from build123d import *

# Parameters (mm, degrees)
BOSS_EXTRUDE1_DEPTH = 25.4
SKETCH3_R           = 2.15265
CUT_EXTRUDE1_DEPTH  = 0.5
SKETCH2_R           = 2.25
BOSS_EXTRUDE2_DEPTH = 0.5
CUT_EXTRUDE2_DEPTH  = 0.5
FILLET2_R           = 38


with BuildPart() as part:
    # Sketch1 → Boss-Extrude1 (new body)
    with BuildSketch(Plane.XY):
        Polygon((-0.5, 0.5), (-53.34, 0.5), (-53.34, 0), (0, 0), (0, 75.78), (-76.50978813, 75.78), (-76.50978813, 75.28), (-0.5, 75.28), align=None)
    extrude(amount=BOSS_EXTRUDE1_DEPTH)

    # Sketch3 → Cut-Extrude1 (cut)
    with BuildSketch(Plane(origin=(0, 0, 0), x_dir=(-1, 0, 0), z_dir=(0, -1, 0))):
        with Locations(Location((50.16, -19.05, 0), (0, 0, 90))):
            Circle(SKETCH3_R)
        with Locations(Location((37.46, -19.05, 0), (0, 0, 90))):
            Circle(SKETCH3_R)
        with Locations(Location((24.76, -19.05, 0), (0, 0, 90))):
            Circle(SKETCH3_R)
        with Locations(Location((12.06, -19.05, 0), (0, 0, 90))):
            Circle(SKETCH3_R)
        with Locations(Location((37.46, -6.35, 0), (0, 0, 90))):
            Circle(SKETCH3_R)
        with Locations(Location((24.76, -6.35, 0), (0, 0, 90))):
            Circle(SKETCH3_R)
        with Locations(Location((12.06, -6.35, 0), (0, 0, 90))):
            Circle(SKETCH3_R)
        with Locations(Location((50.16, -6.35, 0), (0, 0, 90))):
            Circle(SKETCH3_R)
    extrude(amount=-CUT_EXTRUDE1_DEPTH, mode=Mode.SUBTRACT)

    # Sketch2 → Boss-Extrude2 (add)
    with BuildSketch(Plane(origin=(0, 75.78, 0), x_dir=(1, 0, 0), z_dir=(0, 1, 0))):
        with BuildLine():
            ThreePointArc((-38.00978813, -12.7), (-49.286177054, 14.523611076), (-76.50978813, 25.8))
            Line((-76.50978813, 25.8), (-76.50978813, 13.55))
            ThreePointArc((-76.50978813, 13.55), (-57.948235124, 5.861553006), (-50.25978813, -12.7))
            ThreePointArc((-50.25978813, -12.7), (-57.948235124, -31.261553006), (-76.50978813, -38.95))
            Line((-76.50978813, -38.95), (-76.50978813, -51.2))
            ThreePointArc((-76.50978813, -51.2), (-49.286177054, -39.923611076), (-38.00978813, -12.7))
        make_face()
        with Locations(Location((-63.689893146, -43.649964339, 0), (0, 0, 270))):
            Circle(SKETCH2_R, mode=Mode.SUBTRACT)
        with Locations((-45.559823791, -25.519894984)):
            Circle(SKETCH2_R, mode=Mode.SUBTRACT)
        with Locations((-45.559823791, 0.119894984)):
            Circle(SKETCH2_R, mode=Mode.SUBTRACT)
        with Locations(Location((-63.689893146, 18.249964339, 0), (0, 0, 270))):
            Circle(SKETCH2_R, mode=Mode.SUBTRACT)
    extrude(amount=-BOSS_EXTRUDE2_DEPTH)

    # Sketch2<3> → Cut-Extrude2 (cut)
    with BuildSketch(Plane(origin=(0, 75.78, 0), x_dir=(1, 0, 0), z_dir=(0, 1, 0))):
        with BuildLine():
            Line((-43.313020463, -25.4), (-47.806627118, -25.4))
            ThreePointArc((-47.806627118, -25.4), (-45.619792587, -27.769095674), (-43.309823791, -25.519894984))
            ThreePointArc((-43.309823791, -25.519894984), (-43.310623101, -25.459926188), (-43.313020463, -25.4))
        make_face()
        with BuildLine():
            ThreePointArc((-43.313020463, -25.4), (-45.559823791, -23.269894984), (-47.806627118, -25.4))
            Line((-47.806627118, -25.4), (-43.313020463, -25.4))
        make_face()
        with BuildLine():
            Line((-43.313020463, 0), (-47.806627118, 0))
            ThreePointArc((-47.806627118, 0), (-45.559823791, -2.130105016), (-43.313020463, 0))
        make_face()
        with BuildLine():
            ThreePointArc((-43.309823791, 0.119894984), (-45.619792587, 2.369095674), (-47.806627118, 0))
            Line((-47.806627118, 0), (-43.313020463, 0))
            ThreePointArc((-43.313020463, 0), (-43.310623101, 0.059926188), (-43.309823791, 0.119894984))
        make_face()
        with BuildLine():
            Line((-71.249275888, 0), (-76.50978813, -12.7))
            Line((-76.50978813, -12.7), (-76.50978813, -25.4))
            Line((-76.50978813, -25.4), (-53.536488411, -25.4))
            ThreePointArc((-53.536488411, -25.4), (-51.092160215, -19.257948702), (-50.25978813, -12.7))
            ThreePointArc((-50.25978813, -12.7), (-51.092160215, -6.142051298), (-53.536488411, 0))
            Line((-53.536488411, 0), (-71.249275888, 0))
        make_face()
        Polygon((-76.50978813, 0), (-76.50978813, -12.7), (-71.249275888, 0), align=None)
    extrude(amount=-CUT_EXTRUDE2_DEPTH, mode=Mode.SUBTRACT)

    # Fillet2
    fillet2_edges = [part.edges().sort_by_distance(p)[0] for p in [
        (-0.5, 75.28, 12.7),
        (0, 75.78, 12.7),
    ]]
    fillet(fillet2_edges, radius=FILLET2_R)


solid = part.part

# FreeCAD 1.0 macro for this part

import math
import FreeCAD as App
import Part
import Sketcher

V = App.Vector


def edges_at(feature, points):
    """Names of the edges that pass closest to the given points."""
    edges = feature.Shape.Edges
    near = lambda p: min(range(len(edges)), key=lambda i: edges[i].distToShape(Part.Vertex(*p))[0])
    return sorted({f"Edge{near(p) + 1}" for p in points})


def add_polygon(sketch, points):
    """Adds a closed chain of lines whose ends are joined by coincident constraints."""
    first, n = sketch.GeometryCount, len(points)
    for a, b in zip(points, points[1:] + points[:1]):
        sketch.addGeometry(Part.LineSegment(App.Vector(*a, 0), App.Vector(*b, 0)), False)
    for i in range(n):
        sketch.addConstraint(Sketcher.Constraint("Coincident", first + i, 2, first + (i + 1) % n, 1))

doc = App.newDocument("Part")
body = doc.addObject("PartDesign::Body", "Body")

# Sketch on XY plane
sketch1 = doc.addObject("Sketcher::SketchObject", "Sketch")
body.addObject(sketch1)
sketch1.AttachmentSupport = (doc.XY_Plane, [""])
sketch1.MapMode = "FlatFace"
add_polygon(sketch1, [(-0.5, 0.5), (-53.3, 0.5), (-53.3, 0), (0, 0), (0, 75.8), (-76.5, 75.8), (-76.5, 75.3), (-0.5, 75.3)])  # lines 0-7
sketch1.addConstraint([
    Sketcher.Constraint("Horizontal", 0),
    Sketcher.Constraint("Vertical", 1),
    Sketcher.Constraint("Horizontal", 2),
    Sketcher.Constraint("Vertical", 3),
    Sketcher.Constraint("Horizontal", 4),
    Sketcher.Constraint("Vertical", 5),
    Sketcher.Constraint("Horizontal", 6),
    Sketcher.Constraint("Vertical", 7),
    Sketcher.Constraint("Coincident", 2, 2, -1, 1),
    Sketcher.Constraint("Equal", 1, 5),
    Sketcher.Constraint("DistanceY", 1, 2, 1, 1, 0.5),
    Sketcher.Constraint("DistanceX", 0, 2, 0, 1, 52.84),
    Sketcher.Constraint("DistanceX", 2, 1, 2, 2, 53.34),
    Sketcher.Constraint("DistanceY", 3, 1, 3, 2, 75.78),
    Sketcher.Constraint("DistanceX", 4, 2, 4, 1, 76.509788),
])
pad1 = doc.addObject("PartDesign::Pad", "Pad")
body.addObject(pad1)
pad1.Profile = sketch1
pad1.Length = 25.4

# Sketch on XZ plane
sketch2 = doc.addObject("Sketcher::SketchObject", "Sketch001")
body.addObject(sketch2)
sketch2.AttachmentSupport = (doc.XZ_Plane, [""])
sketch2.MapMode = "FlatFace"
sketch2.addGeometry([
    Part.Circle(V(-50.2, 19.1, 0), V(0, 0, 1), 2.2),  # 0
    Part.Circle(V(-37.5, 19.1, 0), V(0, 0, 1), 2.2),  # 1
    Part.Circle(V(-24.8, 19.1, 0), V(0, 0, 1), 2.2),  # 2
    Part.Circle(V(-12.1, 19.1, 0), V(0, 0, 1), 2.2),  # 3
    Part.Circle(V(-37.5, 6.3, 0), V(0, 0, 1), 2.2),  # 4
    Part.Circle(V(-24.8, 6.3, 0), V(0, 0, 1), 2.2),  # 5
    Part.Circle(V(-12.1, 6.3, 0), V(0, 0, 1), 2.2),  # 6
    Part.Circle(V(-50.2, 6.3, 0), V(0, 0, 1), 2.2),  # 7
], False)
sketch2.addConstraint([
    Sketcher.Constraint("Equal", 0, 1),
    Sketcher.Constraint("Equal", 1, 2),
    Sketcher.Constraint("Equal", 2, 3),
    Sketcher.Constraint("Equal", 3, 4),
    Sketcher.Constraint("Equal", 4, 5),
    Sketcher.Constraint("Equal", 5, 6),
    Sketcher.Constraint("Equal", 6, 7),
    Sketcher.Constraint("Horizontal", 0, 3, 1, 3),
    Sketcher.Constraint("Horizontal", 1, 3, 2, 3),
    Sketcher.Constraint("Horizontal", 2, 3, 3, 3),
    Sketcher.Constraint("Horizontal", 4, 3, 5, 3),
    Sketcher.Constraint("Horizontal", 5, 3, 6, 3),
    Sketcher.Constraint("Horizontal", 6, 3, 7, 3),
    Sketcher.Constraint("Vertical", 1, 3, 4, 3),
    Sketcher.Constraint("Vertical", 2, 3, 5, 3),
    Sketcher.Constraint("Vertical", 3, 3, 6, 3),
    Sketcher.Constraint("Vertical", 0, 3, 7, 3),
    Sketcher.Constraint("Diameter", 0, 4.3053),
    Sketcher.Constraint("DistanceX", 0, 3, 1, 3, 12.7),
    Sketcher.Constraint("DistanceX", 1, 3, 2, 3, 12.7),
    Sketcher.Constraint("DistanceX", 2, 3, 3, 3, 12.7),
    Sketcher.Constraint("DistanceY", 4, 3, 1, 3, 12.7),
    Sketcher.Constraint("DistanceX", 0, 3, -1, 1, 50.16),
    Sketcher.Constraint("DistanceY", -1, 1, 0, 3, 19.05),
])
pocket1 = doc.addObject("PartDesign::Pocket", "Pocket")
body.addObject(pocket1)
pocket1.Profile = sketch2
pocket1.Length = 0.5

# Sketch on XZ plane
sketch3 = doc.addObject("Sketcher::SketchObject", "Sketch002")
body.addObject(sketch3)
sketch3.AttachmentSupport = (doc.XZ_Plane, [""])
sketch3.MapMode = "FlatFace"
sketch3.AttachmentOffset = App.Placement(V(0, 0, -75.78), App.Rotation())
sketch3.addGeometry([
    Part.ArcOfCircle(Part.Circle(V(-76.5, 12.7, 0), V(0, 0, 1), 38.5), math.radians(-90), math.radians(0)),  # 0
    Part.LineSegment(V(-76.5, -25.8, 0), V(-76.5, -13.6, 0)),  # 1
    Part.ArcOfCircle(Part.Circle(V(-76.5, 12.7, 0), V(0, 0, 1), 26.3), math.radians(-90), math.radians(0)),  # 2
    Part.ArcOfCircle(Part.Circle(V(-76.5, 12.7, 0), V(0, 0, 1), 26.3), math.radians(0), math.radians(90)),  # 3
    Part.LineSegment(V(-76.5, 39, 0), V(-76.5, 51.2, 0)),  # 4
    Part.ArcOfCircle(Part.Circle(V(-76.5, 12.7, 0), V(0, 0, 1), 38.5), math.radians(0), math.radians(90)),  # 5
    Part.Circle(V(-63.7, 43.6, 0), V(0, 0, 1), 2.2),  # 6
    Part.Circle(V(-45.6, 25.5, 0), V(0, 0, 1), 2.2),  # 7
    Part.Circle(V(-63.7, -18.2, 0), V(0, 0, 1), 2.2),  # 8
    Part.Circle(V(-45.6, -0.1, 0), V(0, 0, 1), 2.2),  # 9
], False)
sketch3.addConstraint([
    Sketcher.Constraint("Coincident", 0, 1, 1, 1),
    Sketcher.Constraint("Coincident", 1, 2, 2, 1),
    Sketcher.Constraint("Tangent", 2, 2, 3, 1),
    Sketcher.Constraint("Coincident", 3, 2, 4, 1),
    Sketcher.Constraint("Coincident", 4, 2, 5, 2),
    Sketcher.Constraint("Tangent", 5, 1, 0, 2),
    Sketcher.Constraint("Vertical", 1),
    Sketcher.Constraint("Vertical", 4),
    Sketcher.Constraint("Coincident", 2, 3, 0, 3),
    Sketcher.Constraint("Equal", 2, 3),
    Sketcher.Constraint("Equal", 0, 5),
    Sketcher.Constraint("Equal", 6, 7),
    Sketcher.Constraint("Equal", 7, 8),
    Sketcher.Constraint("Equal", 8, 9),
    Sketcher.Constraint("Horizontal", 5, 3, 2, 2),
    Sketcher.Constraint("Horizontal", 2, 2, 5, 1),
    Sketcher.Constraint("Vertical", 6, 3, 8, 3),
    Sketcher.Constraint("Vertical", 7, 3, 9, 3),
    Sketcher.Constraint("Vertical", 5, 3, 0, 1),
    Sketcher.Constraint("Vertical", 1, 2, 3, 2),
    Sketcher.Constraint("Diameter", 6, 4.5),
    Sketcher.Constraint("Radius", 0, 38.5),
    Sketcher.Constraint("Radius", 2, 26.25),
    Sketcher.Constraint("DistanceY", -1, 1, 0, 3, 12.7),
    Sketcher.Constraint("DistanceX", 0, 3, -1, 1, 76.509788),
    Sketcher.Constraint("DistanceX", 6, 3, 7, 3, 18.130069),
    Sketcher.Constraint("DistanceY", 7, 3, 6, 3, 18.130069),
    Sketcher.Constraint("DistanceY", 8, 3, 7, 3, 43.769859),
    Sketcher.Constraint("DistanceY", 9, 3, 7, 3, 25.63979),
    Sketcher.Constraint("DistanceX", 6, 3, -1, 1, 63.689893),
    Sketcher.Constraint("DistanceY", -1, 1, 6, 3, 43.649964),
])
pad2 = doc.addObject("PartDesign::Pad", "Pad001")
body.addObject(pad2)
pad2.Profile = sketch3
pad2.Length = 0.5

# Sketch on XZ plane
sketch4 = doc.addObject("Sketcher::SketchObject", "Sketch003")
body.addObject(sketch4)
sketch4.AttachmentSupport = (doc.XZ_Plane, [""])
sketch4.MapMode = "FlatFace"
sketch4.AttachmentOffset = App.Placement(V(0, 0, -75.78), App.Rotation())
sketch4.addGeometry([
    Part.ArcOfCircle(Part.Circle(V(-45.56, 25.52, 0), V(0, 0, 1), 2.25), math.radians(0), math.radians(183)),  # 0
    Part.ArcOfCircle(Part.Circle(V(-45.56, 25.52, 0), V(0, 0, 1), 2.25), math.radians(-3.05), math.radians(0)),  # 1
    Part.ArcOfCircle(Part.Circle(V(-45.56, 25.52, 0), V(0, 0, 1), 2.25), math.radians(-177), math.radians(-3)),  # 2
    Part.ArcOfCircle(Part.Circle(V(-45.56, -0.12, 0), V(0, 0, 1), 2.25), math.radians(3), math.radians(177)),  # 3
    Part.ArcOfCircle(Part.Circle(V(-45.56, -0.12, 0), V(0, 0, 1), 2.25), math.radians(0), math.radians(3.05)),  # 4
    Part.ArcOfCircle(Part.Circle(V(-45.56, -0.12, 0), V(0, 0, 1), 2.25), math.radians(177), math.radians(360)),  # 5
    Part.LineSegment(V(-76.51, 25.4, 0), V(-53.54, 25.4, 0)),  # 6
    Part.ArcOfCircle(Part.Circle(V(-76.51, 12.7, 0), V(0, 0, 1), 26.25), math.radians(0), math.radians(29)),  # 7
    Part.ArcOfCircle(Part.Circle(V(-76.51, 12.7, 0), V(0, 0, 1), 26.25), math.radians(-29), math.radians(0)),  # 8
    Part.LineSegment(V(-53.54, 0, 0), V(-76.51, 0, 0)),  # 9
    Part.LineSegment(V(-76.51, 0, 0), V(-76.51, 25.4, 0)),  # 10
], False)
sketch4.addConstraint([
    Sketcher.Constraint("Tangent", 0, 1, 1, 2),
    Sketcher.Constraint("Tangent", 1, 1, 2, 2),
    Sketcher.Constraint("Tangent", 2, 1, 0, 2),
    Sketcher.Constraint("Tangent", 3, 1, 4, 2),
    Sketcher.Constraint("Tangent", 4, 1, 5, 2),
    Sketcher.Constraint("Tangent", 5, 1, 3, 2),
    Sketcher.Constraint("Coincident", 6, 2, 7, 2),
    Sketcher.Constraint("Tangent", 7, 1, 8, 2),
    Sketcher.Constraint("Coincident", 8, 1, 9, 1),
    Sketcher.Constraint("Coincident", 9, 2, 10, 1),
    Sketcher.Constraint("Coincident", 10, 2, 6, 1),
    Sketcher.Constraint("Horizontal", 6),
    Sketcher.Constraint("Horizontal", 9),
    Sketcher.Constraint("Vertical", 10),
    Sketcher.Constraint("Equal", 2, 3),
    Sketcher.Constraint("Equal", 7, 8),
    Sketcher.Constraint("PointOnObject", 3, 1, -1),
    Sketcher.Constraint("PointOnObject", 5, 1, -1),
    Sketcher.Constraint("PointOnObject", 8, 1, -1),
    Sketcher.Constraint("Horizontal", 2, 3, 0, 1),
    Sketcher.Constraint("Horizontal", 1, 1, 2, 1),
    Sketcher.Constraint("Horizontal", 5, 3, 4, 1),
    Sketcher.Constraint("Horizontal", 2, 1, 6, 2),
    Sketcher.Constraint("Horizontal", 8, 3, 7, 1),
    Sketcher.Constraint("Vertical", 2, 3, 3, 3),
    Sketcher.Constraint("Vertical", 1, 1, 3, 1),
    Sketcher.Constraint("Vertical", 6, 2, 8, 1),
    Sketcher.Constraint("Vertical", 8, 3, 9, 2),
    Sketcher.Constraint("Radius", 0, 2.25),
    Sketcher.Constraint("Radius", 7, 26.25),
    Sketcher.Constraint("DistanceY", 10, 1, 10, 2, 25.4),
    Sketcher.Constraint("DistanceX", 7, 3, -1, 1, 76.509788),
    Sketcher.Constraint("DistanceX", 1, 1, -1, 1, 43.31302),
    Sketcher.Constraint("DistanceY", 3, 3, 0, 3, 25.63979),
])
pocket2 = doc.addObject("PartDesign::Pocket", "Pocket001")
body.addObject(pocket2)
pocket2.Profile = sketch4
pocket2.Length = 0.5
pocket2.Reversed = True
doc.recompute()

fillet = doc.addObject("PartDesign::Fillet", "Fillet")
body.addObject(fillet)
fillet.Base = (pocket2, edges_at(pocket2, [(-0.5, 75.28, 12.7), (0, 75.78, 12.7)]))
fillet.Radius = 38

doc.recompute()
